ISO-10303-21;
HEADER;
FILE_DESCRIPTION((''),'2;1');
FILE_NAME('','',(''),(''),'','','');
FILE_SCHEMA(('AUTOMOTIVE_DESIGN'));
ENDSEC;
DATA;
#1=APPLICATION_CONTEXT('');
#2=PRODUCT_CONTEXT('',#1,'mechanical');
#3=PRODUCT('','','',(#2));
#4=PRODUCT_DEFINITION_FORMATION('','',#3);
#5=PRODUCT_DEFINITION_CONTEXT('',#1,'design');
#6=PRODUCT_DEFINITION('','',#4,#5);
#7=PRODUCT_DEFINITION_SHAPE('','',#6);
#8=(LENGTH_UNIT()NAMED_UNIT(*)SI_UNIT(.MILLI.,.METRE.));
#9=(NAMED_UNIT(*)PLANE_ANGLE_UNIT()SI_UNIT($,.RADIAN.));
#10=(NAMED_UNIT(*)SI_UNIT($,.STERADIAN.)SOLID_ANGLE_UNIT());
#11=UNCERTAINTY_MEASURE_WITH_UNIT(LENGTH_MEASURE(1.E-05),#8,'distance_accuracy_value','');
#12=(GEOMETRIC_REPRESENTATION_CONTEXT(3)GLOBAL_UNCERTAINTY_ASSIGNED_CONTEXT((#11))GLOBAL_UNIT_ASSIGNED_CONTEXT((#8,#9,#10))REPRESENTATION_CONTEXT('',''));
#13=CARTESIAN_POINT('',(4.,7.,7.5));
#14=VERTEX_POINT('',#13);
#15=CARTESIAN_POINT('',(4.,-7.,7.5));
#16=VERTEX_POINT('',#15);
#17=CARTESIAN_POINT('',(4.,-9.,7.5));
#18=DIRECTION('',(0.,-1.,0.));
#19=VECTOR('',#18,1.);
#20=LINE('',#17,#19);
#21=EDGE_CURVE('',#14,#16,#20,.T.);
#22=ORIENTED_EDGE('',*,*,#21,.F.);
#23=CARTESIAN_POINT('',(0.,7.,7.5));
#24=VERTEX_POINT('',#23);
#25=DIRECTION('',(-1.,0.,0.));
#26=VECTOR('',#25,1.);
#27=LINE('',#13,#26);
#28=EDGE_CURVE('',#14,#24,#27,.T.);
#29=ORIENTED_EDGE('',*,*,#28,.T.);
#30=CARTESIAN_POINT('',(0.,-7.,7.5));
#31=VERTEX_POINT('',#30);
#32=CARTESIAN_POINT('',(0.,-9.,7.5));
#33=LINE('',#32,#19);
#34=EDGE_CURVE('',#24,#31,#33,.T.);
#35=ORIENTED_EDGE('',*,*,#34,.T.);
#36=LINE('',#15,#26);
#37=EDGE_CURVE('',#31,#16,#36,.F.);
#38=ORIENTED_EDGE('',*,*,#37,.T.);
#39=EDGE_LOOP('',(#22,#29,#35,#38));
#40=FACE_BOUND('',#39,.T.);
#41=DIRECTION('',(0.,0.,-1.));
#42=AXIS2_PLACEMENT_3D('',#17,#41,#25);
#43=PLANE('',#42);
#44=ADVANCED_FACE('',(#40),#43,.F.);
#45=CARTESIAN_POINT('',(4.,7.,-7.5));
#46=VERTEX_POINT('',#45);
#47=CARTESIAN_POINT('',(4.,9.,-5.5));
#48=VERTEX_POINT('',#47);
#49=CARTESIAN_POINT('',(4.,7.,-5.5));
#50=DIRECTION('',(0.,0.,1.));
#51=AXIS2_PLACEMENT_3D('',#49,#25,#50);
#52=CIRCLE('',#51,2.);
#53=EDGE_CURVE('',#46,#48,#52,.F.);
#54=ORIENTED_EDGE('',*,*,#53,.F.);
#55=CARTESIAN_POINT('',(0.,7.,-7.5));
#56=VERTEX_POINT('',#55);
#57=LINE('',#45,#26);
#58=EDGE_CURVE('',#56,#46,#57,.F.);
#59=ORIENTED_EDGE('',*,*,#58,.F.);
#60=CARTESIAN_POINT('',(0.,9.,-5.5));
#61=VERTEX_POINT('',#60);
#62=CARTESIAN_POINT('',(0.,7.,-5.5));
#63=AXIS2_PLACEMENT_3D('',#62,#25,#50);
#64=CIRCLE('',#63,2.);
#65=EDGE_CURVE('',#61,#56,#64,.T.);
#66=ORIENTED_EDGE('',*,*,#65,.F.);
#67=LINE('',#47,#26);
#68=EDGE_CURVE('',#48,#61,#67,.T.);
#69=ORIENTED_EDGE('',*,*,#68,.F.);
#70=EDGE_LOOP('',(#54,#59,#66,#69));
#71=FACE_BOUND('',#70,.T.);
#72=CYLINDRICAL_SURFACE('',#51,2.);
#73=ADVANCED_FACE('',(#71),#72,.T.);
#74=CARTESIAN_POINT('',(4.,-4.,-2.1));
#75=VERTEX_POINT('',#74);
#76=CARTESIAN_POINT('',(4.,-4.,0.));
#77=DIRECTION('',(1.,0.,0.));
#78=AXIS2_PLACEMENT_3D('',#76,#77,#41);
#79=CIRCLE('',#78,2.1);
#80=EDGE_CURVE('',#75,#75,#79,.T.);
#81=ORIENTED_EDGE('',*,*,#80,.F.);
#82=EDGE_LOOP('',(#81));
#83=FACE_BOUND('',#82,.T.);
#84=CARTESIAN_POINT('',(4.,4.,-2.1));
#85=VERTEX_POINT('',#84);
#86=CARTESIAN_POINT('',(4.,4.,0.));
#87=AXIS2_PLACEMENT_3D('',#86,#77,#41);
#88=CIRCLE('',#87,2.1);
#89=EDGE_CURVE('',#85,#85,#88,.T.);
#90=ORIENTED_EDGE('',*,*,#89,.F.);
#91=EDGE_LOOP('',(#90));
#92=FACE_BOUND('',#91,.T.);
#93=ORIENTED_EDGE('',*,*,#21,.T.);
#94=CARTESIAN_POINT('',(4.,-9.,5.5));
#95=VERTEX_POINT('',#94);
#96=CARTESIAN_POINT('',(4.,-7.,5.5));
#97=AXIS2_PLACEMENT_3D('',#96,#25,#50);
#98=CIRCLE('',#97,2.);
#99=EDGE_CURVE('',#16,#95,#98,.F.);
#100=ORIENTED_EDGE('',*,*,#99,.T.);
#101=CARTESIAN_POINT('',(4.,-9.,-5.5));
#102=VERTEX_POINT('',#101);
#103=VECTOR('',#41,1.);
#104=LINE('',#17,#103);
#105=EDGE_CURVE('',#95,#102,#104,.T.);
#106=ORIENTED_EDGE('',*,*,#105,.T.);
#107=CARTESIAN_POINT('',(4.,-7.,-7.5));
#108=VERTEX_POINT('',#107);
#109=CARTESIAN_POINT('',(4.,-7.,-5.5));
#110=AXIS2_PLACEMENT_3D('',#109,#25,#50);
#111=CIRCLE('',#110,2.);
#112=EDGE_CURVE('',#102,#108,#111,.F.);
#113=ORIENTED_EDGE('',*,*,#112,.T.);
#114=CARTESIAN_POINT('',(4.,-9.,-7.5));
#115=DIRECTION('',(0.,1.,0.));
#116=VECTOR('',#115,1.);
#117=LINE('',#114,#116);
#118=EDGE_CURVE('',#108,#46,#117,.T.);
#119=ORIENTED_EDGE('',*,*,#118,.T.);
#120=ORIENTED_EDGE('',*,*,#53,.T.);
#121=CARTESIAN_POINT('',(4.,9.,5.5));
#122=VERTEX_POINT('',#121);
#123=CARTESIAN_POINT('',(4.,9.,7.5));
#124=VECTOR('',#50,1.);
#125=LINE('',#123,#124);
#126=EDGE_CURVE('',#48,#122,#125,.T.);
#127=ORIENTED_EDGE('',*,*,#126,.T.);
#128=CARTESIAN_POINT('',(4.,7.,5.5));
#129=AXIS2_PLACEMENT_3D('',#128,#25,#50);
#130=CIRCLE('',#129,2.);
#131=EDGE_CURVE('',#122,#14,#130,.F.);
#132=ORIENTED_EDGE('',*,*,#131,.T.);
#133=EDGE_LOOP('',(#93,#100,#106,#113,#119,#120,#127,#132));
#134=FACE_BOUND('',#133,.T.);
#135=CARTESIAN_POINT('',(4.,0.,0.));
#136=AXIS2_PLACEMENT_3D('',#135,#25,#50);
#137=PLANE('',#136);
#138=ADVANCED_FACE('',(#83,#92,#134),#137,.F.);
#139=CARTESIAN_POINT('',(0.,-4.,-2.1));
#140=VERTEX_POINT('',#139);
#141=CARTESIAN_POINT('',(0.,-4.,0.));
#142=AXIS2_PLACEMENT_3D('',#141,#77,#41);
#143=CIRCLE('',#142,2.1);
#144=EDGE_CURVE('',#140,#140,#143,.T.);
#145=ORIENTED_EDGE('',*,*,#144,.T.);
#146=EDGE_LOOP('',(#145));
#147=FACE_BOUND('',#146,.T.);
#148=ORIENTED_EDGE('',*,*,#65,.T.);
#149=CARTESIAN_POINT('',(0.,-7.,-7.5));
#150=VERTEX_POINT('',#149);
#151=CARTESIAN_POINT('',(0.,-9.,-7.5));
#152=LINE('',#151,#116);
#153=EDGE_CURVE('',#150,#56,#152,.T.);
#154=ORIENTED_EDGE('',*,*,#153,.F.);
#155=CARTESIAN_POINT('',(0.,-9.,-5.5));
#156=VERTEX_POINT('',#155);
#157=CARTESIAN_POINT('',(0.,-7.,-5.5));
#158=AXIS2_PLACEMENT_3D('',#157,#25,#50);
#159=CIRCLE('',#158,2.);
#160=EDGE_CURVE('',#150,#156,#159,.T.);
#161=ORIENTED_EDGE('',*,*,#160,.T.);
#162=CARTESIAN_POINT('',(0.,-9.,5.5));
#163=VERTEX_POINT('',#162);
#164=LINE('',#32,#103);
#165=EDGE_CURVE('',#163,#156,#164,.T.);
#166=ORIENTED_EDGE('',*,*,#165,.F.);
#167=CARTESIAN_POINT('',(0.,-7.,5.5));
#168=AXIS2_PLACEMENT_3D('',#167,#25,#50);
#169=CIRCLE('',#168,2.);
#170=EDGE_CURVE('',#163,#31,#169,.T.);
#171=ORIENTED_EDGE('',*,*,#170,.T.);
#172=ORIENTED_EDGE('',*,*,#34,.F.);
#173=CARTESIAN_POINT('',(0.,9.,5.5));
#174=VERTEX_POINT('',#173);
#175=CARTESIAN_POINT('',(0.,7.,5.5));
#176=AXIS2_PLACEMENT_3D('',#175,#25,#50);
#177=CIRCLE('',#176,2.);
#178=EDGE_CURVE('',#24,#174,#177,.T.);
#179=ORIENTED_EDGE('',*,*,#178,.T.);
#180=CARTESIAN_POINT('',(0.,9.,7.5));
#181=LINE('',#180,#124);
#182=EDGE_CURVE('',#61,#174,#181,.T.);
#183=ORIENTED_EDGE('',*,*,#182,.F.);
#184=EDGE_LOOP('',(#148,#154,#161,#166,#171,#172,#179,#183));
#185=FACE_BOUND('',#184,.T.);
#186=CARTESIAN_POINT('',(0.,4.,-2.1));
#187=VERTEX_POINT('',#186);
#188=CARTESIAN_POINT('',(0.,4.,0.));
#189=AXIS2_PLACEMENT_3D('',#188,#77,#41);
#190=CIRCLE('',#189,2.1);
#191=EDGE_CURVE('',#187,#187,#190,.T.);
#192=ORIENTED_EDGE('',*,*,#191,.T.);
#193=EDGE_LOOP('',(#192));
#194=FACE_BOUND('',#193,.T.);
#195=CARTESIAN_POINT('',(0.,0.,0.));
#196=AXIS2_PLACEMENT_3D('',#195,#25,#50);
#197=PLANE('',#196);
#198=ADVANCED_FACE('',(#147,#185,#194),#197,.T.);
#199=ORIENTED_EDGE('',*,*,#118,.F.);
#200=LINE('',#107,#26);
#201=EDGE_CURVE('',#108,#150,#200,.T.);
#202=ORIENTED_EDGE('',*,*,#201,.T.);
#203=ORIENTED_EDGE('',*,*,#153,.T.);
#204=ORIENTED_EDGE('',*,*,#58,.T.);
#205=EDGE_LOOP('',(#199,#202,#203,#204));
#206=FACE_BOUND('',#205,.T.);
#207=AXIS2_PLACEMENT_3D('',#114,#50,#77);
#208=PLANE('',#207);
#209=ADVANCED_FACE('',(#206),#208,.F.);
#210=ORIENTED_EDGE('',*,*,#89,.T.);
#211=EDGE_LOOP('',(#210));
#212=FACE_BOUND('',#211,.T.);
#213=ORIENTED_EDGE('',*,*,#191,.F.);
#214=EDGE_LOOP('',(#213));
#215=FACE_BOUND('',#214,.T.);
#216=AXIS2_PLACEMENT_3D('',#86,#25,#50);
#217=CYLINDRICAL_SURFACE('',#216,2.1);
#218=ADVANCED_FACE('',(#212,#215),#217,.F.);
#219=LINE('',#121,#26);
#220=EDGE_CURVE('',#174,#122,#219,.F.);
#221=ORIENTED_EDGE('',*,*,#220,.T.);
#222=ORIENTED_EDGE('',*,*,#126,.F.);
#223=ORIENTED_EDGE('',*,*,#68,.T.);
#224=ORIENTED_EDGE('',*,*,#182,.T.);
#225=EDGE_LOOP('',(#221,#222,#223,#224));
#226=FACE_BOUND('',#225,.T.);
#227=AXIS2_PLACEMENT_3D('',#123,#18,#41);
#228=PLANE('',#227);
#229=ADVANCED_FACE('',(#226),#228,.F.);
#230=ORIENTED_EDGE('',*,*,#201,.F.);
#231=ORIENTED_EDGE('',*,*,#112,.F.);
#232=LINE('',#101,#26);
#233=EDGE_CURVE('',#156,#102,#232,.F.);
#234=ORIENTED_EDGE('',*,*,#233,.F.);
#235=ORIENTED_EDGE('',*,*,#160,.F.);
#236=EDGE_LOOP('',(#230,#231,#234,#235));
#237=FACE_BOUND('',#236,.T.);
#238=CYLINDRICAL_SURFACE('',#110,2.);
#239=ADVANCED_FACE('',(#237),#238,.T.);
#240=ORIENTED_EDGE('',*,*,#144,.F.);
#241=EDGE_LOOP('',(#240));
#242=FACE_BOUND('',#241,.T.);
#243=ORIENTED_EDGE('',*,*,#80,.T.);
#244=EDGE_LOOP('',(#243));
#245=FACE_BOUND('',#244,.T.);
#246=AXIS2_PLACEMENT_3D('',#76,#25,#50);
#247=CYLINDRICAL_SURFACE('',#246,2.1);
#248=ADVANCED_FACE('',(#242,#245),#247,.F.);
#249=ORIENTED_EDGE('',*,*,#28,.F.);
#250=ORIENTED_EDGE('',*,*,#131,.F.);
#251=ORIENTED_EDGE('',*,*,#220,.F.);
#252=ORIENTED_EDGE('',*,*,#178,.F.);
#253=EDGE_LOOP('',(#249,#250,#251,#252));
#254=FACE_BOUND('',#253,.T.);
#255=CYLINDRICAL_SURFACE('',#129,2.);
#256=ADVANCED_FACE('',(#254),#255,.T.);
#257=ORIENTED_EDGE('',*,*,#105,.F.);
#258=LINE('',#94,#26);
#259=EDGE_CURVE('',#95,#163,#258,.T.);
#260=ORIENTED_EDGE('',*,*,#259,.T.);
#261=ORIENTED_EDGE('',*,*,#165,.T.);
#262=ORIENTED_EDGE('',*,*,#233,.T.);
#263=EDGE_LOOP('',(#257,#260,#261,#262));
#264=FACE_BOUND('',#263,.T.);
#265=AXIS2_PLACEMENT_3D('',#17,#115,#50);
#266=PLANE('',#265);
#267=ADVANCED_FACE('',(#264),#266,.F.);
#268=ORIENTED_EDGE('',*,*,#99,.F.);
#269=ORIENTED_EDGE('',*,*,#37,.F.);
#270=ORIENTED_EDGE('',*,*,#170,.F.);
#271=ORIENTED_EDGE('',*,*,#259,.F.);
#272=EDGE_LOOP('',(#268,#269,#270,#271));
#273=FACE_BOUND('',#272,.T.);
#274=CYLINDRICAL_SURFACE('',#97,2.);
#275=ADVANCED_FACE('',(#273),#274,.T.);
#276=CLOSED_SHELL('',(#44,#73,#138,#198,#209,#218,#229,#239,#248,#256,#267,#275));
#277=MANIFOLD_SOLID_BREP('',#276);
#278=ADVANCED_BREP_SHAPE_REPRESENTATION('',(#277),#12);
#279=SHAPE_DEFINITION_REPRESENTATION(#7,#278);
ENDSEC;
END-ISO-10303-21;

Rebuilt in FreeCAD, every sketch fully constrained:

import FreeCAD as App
import Part
import Sketcher
from FreeCAD import Vector
Q = App.Units.Quantity


def edges_at(feature, points):
    """Names of the edges that pass closest to the given points."""
    edges = feature.Shape.Edges
    near = lambda p: min(range(len(edges)), key=lambda i: edges[i].distToShape(Part.Vertex(*p))[0])
    return sorted({f"Edge{near(p) + 1}" for p in points})


def add_polygon(sketch, points):
    """Adds a closed chain of lines whose ends are joined by coincident constraints."""
    first, n = sketch.GeometryCount, len(points)
    for a, b in zip(points, points[1:] + points[:1]):
        sketch.addGeometry(Part.LineSegment(App.Vector(*a, 0), App.Vector(*b, 0)), False)
    for i in range(n):
        sketch.addConstraint(Sketcher.Constraint("Coincident", first + i, 2, first + (i + 1) % n, 1))

doc = App.newDocument("Part")
params = doc.addObject("Spreadsheet::Sheet", "Params")
for row, (alias, value) in enumerate([
    ("sketch1_diameter", "4.2 mm"),
    ("sketch1_width", "18 mm"),
    ("sketch1_height", "15 mm"),
    ("pad1_length", "4 mm"),
    ("fillet_radius", "2 mm"),
], start=1):
    params.set(f"A{row}", alias)
    params.set(f"B{row}", "=" + value)
    params.setAlias(f"B{row}", alias)

body = doc.addObject("PartDesign::Body", "Body")

# Sketch on YZ plane
sketch1 = body.newObject("Sketcher::SketchObject", "Sketch")
sketch1.AttachmentSupport = (doc.getObject("YZ_Plane"), [""])
sketch1.MapMode = "FlatFace"
add_polygon(sketch1, [(9, 7.5), (-9, 7.5), (-9, -7.5), (9, -7.5)])  # lines 0-3
sketch1.addGeometry(Part.Circle(Vector(-4, 0, 0), Vector(0, 0, 1), 2.1), False)  # 4
sketch1.addGeometry(Part.Circle(Vector(4, 0, 0), Vector(0, 0, 1), 2.1), False)  # 5
sketch1.addConstraint([
    Sketcher.Constraint("Horizontal", 0),
    Sketcher.Constraint("Vertical", 1),
    Sketcher.Constraint("Horizontal", 2),
    Sketcher.Constraint("Vertical", 3),
    Sketcher.Constraint("Equal", 4, 5),
    Sketcher.Constraint("Symmetric", 4, 3, 5, 3, -1, 1),
    Sketcher.Constraint("Symmetric", 0, 2, 2, 2, -1, 1),
    Sketcher.Constraint("PointOnObject", 4, 3, -1),
    Sketcher.Constraint("Diameter", 4, Q("4.2 mm")),
    Sketcher.Constraint("DistanceX", 0, 2, 0, 1, Q("18 mm")),
    Sketcher.Constraint("DistanceY", 1, 2, 1, 1, Q("15 mm")),
    Sketcher.Constraint("DistanceX", 4, 3, -1, 1, Q("4 mm")),
])
sketch1.setExpression("Constraints[12]", "Params.sketch1_diameter")
sketch1.setExpression("Constraints[13]", "Params.sketch1_width")
sketch1.setExpression("Constraints[14]", "Params.sketch1_height")
pad1 = body.newObject("PartDesign::Pad", "Pad")
pad1.Profile = sketch1
pad1.setExpression("Length", "Params.pad1_length")
doc.recompute()

fillet = body.newObject("PartDesign::Fillet", "Fillet")
fillet.Base = (pad1, edges_at(pad1, [
    (2, -9, -7.5),
    (2, -9, 7.5),
    (2, 9, 7.5),
    (2, 9, -7.5),
]))
fillet.setExpression("Radius", "Params.fillet_radius")

doc.recompute()
